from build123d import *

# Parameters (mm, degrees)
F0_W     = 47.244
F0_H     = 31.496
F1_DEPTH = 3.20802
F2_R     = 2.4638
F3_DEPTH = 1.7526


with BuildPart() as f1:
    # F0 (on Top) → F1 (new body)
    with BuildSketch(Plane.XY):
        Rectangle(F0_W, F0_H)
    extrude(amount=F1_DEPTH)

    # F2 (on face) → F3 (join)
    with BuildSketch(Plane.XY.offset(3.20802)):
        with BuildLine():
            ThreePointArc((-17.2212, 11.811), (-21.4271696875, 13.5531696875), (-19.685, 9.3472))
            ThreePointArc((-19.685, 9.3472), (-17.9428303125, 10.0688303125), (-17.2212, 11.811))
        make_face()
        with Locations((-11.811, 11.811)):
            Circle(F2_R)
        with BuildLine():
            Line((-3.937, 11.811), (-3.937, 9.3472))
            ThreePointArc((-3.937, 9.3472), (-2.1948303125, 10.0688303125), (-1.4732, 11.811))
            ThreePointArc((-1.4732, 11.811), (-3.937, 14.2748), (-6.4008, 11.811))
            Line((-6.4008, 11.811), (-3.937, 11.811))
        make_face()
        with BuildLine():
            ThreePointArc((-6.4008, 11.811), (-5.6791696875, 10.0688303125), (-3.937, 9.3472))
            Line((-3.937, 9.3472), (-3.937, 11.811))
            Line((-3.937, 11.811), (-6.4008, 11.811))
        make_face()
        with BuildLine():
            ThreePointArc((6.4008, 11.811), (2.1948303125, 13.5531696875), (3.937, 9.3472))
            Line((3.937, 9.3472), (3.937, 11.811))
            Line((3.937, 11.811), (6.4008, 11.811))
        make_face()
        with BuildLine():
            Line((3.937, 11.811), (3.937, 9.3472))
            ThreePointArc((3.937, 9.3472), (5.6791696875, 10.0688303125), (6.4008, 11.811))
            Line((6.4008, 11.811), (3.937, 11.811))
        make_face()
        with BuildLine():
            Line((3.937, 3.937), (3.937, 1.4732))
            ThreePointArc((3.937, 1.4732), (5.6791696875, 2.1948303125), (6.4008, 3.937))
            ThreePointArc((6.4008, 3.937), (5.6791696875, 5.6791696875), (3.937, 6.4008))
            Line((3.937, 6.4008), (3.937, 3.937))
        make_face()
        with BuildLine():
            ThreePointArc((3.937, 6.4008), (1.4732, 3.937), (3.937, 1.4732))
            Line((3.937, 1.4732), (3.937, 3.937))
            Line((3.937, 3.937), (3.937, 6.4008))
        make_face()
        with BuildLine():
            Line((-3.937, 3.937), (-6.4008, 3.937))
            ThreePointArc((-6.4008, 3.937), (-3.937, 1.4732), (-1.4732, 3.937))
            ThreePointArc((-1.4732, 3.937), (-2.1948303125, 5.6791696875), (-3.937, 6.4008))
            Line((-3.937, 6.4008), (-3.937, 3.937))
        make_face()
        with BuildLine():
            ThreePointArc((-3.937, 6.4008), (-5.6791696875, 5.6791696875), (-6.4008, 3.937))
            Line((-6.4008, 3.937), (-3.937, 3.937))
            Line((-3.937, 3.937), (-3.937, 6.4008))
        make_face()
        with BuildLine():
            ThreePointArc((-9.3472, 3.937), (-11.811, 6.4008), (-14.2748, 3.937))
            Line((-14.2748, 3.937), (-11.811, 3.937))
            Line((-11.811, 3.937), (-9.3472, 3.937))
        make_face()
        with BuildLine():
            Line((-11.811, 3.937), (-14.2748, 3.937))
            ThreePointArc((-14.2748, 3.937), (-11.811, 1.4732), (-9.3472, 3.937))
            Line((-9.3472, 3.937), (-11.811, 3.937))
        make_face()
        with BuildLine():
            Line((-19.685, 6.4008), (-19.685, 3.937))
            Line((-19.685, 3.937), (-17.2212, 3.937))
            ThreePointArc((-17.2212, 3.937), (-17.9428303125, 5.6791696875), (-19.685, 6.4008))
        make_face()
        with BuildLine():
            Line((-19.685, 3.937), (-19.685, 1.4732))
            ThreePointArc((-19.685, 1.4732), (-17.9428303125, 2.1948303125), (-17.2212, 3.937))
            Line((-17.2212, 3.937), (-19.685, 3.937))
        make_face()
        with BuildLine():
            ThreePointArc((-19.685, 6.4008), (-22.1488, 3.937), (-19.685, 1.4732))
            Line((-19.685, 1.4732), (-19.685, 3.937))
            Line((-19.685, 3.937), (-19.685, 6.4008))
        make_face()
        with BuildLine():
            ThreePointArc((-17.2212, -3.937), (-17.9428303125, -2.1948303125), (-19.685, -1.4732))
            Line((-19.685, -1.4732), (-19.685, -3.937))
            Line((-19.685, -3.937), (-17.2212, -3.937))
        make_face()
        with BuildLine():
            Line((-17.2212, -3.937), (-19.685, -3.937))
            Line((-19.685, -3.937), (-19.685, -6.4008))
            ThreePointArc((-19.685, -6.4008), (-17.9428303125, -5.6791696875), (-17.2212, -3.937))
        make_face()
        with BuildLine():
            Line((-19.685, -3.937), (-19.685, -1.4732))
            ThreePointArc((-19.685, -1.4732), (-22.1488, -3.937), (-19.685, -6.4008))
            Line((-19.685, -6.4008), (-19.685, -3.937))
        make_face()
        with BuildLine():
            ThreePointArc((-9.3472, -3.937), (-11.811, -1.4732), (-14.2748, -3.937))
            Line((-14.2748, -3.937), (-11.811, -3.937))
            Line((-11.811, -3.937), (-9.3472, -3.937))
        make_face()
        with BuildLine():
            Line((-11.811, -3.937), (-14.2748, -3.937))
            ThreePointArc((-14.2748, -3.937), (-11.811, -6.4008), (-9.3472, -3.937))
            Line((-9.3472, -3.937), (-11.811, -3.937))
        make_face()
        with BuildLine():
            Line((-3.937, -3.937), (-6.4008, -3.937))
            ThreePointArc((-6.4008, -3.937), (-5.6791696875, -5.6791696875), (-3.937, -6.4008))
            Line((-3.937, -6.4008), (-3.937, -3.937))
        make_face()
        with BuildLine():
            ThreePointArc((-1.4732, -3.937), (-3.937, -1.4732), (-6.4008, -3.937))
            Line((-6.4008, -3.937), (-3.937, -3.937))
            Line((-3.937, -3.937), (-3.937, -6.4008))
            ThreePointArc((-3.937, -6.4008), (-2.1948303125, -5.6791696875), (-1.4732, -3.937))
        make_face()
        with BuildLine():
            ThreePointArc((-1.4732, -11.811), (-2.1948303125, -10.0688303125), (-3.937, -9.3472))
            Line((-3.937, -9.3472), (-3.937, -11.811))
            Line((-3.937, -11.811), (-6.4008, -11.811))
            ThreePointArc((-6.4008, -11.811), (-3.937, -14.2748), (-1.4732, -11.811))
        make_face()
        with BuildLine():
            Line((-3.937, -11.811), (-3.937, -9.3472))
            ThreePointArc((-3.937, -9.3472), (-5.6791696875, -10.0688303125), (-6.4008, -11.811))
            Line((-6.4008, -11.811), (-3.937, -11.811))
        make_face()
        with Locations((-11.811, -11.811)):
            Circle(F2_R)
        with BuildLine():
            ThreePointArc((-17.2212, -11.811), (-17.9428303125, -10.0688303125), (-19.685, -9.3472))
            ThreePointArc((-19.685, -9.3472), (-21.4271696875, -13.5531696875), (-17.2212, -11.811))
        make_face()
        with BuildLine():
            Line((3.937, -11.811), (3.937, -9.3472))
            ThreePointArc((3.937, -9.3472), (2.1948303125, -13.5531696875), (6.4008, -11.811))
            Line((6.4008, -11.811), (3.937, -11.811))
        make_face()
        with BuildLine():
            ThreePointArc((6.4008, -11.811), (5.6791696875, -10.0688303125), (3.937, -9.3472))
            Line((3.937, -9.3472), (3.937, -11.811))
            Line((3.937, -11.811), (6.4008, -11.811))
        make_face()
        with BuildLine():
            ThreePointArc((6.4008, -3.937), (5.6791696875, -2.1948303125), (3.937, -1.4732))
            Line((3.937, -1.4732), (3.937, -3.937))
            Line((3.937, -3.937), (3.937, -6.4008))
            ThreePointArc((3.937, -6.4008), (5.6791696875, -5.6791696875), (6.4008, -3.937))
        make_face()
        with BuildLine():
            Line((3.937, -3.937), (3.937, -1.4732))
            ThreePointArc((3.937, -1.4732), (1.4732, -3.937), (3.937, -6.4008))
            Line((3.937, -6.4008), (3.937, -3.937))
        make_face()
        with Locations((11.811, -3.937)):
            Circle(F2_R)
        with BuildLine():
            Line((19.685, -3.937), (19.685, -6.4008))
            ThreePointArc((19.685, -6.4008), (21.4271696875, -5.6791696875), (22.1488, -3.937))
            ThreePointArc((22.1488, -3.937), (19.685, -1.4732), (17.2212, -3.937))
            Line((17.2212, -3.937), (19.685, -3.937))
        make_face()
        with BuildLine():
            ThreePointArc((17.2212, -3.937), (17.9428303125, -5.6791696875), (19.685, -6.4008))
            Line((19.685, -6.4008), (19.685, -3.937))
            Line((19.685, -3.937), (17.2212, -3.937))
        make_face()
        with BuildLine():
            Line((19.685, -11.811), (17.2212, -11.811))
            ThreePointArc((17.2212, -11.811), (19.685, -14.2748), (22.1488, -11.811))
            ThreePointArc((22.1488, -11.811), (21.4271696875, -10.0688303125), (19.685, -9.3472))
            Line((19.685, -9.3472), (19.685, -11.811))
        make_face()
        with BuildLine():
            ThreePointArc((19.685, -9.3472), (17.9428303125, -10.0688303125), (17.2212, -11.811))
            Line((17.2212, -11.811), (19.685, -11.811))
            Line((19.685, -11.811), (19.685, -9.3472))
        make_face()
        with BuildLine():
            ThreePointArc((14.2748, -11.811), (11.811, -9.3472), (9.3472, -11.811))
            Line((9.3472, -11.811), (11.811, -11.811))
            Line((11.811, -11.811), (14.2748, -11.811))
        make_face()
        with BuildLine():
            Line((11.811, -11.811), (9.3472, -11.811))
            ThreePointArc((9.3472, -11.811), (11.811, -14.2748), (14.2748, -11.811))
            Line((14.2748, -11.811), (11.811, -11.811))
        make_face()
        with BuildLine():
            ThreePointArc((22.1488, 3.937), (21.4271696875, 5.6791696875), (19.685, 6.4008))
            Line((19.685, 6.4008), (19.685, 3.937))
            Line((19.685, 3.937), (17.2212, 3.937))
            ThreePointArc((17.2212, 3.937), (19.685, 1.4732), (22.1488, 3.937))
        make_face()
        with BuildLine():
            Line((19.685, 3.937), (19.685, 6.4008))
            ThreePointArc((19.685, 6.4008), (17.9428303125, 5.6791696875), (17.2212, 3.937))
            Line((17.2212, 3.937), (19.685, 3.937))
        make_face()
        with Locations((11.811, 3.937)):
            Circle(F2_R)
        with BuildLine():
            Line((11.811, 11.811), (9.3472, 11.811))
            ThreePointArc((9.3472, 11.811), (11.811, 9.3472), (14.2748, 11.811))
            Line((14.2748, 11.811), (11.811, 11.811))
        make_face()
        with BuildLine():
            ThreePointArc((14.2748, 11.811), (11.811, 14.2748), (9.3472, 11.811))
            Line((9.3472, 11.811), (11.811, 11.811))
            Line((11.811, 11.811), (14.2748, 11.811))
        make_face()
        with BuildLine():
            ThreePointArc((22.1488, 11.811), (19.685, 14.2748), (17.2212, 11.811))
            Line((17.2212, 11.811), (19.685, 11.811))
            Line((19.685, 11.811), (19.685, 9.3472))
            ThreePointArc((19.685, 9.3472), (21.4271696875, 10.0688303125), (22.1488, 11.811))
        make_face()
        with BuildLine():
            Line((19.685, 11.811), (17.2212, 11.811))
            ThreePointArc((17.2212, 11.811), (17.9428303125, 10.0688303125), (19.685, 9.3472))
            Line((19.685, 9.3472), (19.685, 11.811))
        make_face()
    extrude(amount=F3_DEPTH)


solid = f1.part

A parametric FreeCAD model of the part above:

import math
import FreeCAD as App
import Part
import Sketcher
from FreeCAD import Vector
Q = App.Units.Quantity

doc = App.newDocument("Part")
body = doc.addObject("PartDesign::Body", "Body")

sketch1 = body.newObject("Sketcher::SketchObject", "Sketch")
sketch1.AttachmentSupport = (doc.getObject("XY_Plane"), [""])
sketch1.MapMode = "FlatFace"
sketch1.addGeometry(Part.LineSegment(Vector(-24, 16, 0), Vector(-24, -16, 0)), False)
sketch1.addGeometry(Part.LineSegment(Vector(-24, -16, 0), Vector(24, -16, 0)), False)
sketch1.addGeometry(Part.LineSegment(Vector(24, -16, 0), Vector(24, 16, 0)), False)
sketch1.addGeometry(Part.LineSegment(Vector(24, 16, 0), Vector(-24, 16, 0)), False)
sketch1.addConstraint(Sketcher.Constraint("Coincident", 0, 2, 1, 1))
sketch1.addConstraint(Sketcher.Constraint("Coincident", 1, 2, 2, 1))
sketch1.addConstraint(Sketcher.Constraint("Coincident", 2, 2, 3, 1))
sketch1.addConstraint(Sketcher.Constraint("Coincident", 3, 2, 0, 1))
sketch1.addConstraint(Sketcher.Constraint("Vertical", 0))
sketch1.addConstraint(Sketcher.Constraint("Horizontal", 1))
sketch1.addConstraint(Sketcher.Constraint("Vertical", 2))
sketch1.addConstraint(Sketcher.Constraint("Horizontal", 3))
sketch1.addConstraint(Sketcher.Constraint("Symmetric", 0, 2, 2, 2, -1, 1))
sketch1.addConstraint(Sketcher.Constraint("DistanceX", 1, 1, 1, 2, Q("1.86 in")))
sketch1.addConstraint(Sketcher.Constraint("DistanceY", 0, 2, 0, 1, Q("1.24 in")))
pad1 = body.newObject("PartDesign::Pad", "Pad")
pad1.Profile = sketch1
pad1.Length = Q("0.1263 in")

sketch2 = body.newObject("Sketcher::SketchObject", "Sketch001")
sketch2.AttachmentSupport = (doc.getObject("XY_Plane"), [""])
sketch2.MapMode = "FlatFace"
sketch2.AttachmentOffset = App.Placement(Vector(0, 0, 0.1263 * 25.4), App.Rotation())
sketch2.addGeometry(Part.ArcOfCircle(Part.Circle(Vector(-19.7, 11.8, 0), Vector(0, 0, 1), 2.5), math.radians(0), math.radians(270)), False)
sketch2.addGeometry(Part.ArcOfCircle(Part.Circle(Vector(-19.7, 11.8, 0), Vector(0, 0, 1), 2.5), math.radians(-90), math.radians(0)), False)
sketch2.addGeometry(Part.Circle(Vector(-11.8, 11.8, 0), Vector(0, 0, 1), 2.5), False)
sketch2.addGeometry(Part.ArcOfCircle(Part.Circle(Vector(-3.9, 11.8, 0), Vector(0, 0, 1), 2.5), math.radians(-90), math.radians(0)), False)
sketch2.addGeometry(Part.ArcOfCircle(Part.Circle(Vector(-3.9, 11.8, 0), Vector(0, 0, 1), 2.5), math.radians(0), math.radians(180)), False)
sketch2.addGeometry(Part.ArcOfCircle(Part.Circle(Vector(-3.9, 11.8, 0), Vector(0, 0, 1), 2.5), math.radians(180), math.radians(270)), False)
sketch2.addGeometry(Part.ArcOfCircle(Part.Circle(Vector(3.9, 11.8, 0), Vector(0, 0, 1), 2.5), math.radians(0), math.radians(270)), False)
sketch2.addGeometry(Part.ArcOfCircle(Part.Circle(Vector(3.9, 11.8, 0), Vector(0, 0, 1), 2.5), math.radians(-90), math.radians(0)), False)
sketch2.addGeometry(Part.ArcOfCircle(Part.Circle(Vector(3.9, 3.9, 0), Vector(0, 0, 1), 2.5), math.radians(-90), math.radians(0)), False)
sketch2.addGeometry(Part.ArcOfCircle(Part.Circle(Vector(3.9, 3.9, 0), Vector(0, 0, 1), 2.5), math.radians(0), math.radians(90)), False)
sketch2.addGeometry(Part.ArcOfCircle(Part.Circle(Vector(3.9, 3.9, 0), Vector(0, 0, 1), 2.5), math.radians(90), math.radians(270)), False)
sketch2.addGeometry(Part.ArcOfCircle(Part.Circle(Vector(-3.9, 3.9, 0), Vector(0, 0, 1), 2.5), math.radians(180), math.radians(360)), False)
sketch2.addGeometry(Part.ArcOfCircle(Part.Circle(Vector(-3.9, 3.9, 0), Vector(0, 0, 1), 2.5), math.radians(0), math.radians(90)), False)
sketch2.addGeometry(Part.ArcOfCircle(Part.Circle(Vector(-3.9, 3.9, 0), Vector(0, 0, 1), 2.5), math.radians(90), math.radians(180)), False)
sketch2.addGeometry(Part.Circle(Vector(-11.8, 3.9, 0), Vector(0, 0, 1), 2.5), False)
sketch2.addGeometry(Part.ArcOfCircle(Part.Circle(Vector(-19.7, 3.9, 0), Vector(0, 0, 1), 2.5), math.radians(-90), math.radians(0)), False)
sketch2.addGeometry(Part.ArcOfCircle(Part.Circle(Vector(-19.7, 3.9, 0), Vector(0, 0, 1), 2.5), math.radians(0), math.radians(90)), False)
sketch2.addGeometry(Part.ArcOfCircle(Part.Circle(Vector(-19.7, 3.9, 0), Vector(0, 0, 1), 2.5), math.radians(90), math.radians(270)), False)
sketch2.addGeometry(Part.ArcOfCircle(Part.Circle(Vector(-19.7, -3.9, 0), Vector(0, 0, 1), 2.5), math.radians(0), math.radians(90)), False)
sketch2.addGeometry(Part.ArcOfCircle(Part.Circle(Vector(-19.7, -3.9, 0), Vector(0, 0, 1), 2.5), math.radians(90), math.radians(270)), False)
sketch2.addGeometry(Part.ArcOfCircle(Part.Circle(Vector(-19.7, -3.9, 0), Vector(0, 0, 1), 2.5), math.radians(-90), math.radians(0)), False)
sketch2.addGeometry(Part.Circle(Vector(-11.8, -3.9, 0), Vector(0, 0, 1), 2.5), False)
sketch2.addGeometry(Part.ArcOfCircle(Part.Circle(Vector(-3.9, -3.9, 0), Vector(0, 0, 1), 2.5), math.radians(180), math.radians(270)), False)
sketch2.addGeometry(Part.ArcOfCircle(Part.Circle(Vector(-3.9, -3.9, 0), Vector(0, 0, 1), 2.5), math.radians(-90), math.radians(0)), False)
sketch2.addGeometry(Part.ArcOfCircle(Part.Circle(Vector(-3.9, -3.9, 0), Vector(0, 0, 1), 2.5), math.radians(0), math.radians(180)), False)
sketch2.addGeometry(Part.ArcOfCircle(Part.Circle(Vector(-3.9, -11.8, 0), Vector(0, 0, 1), 2.5), math.radians(0), math.radians(90)), False)
sketch2.addGeometry(Part.ArcOfCircle(Part.Circle(Vector(-3.9, -11.8, 0), Vector(0, 0, 1), 2.5), math.radians(90), math.radians(180)), False)
sketch2.addGeometry(Part.ArcOfCircle(Part.Circle(Vector(-3.9, -11.8, 0), Vector(0, 0, 1), 2.5), math.radians(180), math.radians(360)), False)
sketch2.addGeometry(Part.Circle(Vector(-11.8, -11.8, 0), Vector(0, 0, 1), 2.5), False)
sketch2.addGeometry(Part.ArcOfCircle(Part.Circle(Vector(-19.7, -11.8, 0), Vector(0, 0, 1), 2.5), math.radians(0), math.radians(90)), False)
sketch2.addGeometry(Part.ArcOfCircle(Part.Circle(Vector(-19.7, -11.8, 0), Vector(0, 0, 1), 2.5), math.radians(90), math.radians(360)), False)
sketch2.addGeometry(Part.ArcOfCircle(Part.Circle(Vector(3.9, -11.8, 0), Vector(0, 0, 1), 2.5), math.radians(90), math.radians(360)), False)
sketch2.addGeometry(Part.ArcOfCircle(Part.Circle(Vector(3.9, -11.8, 0), Vector(0, 0, 1), 2.5), math.radians(0), math.radians(90)), False)
sketch2.addGeometry(Part.ArcOfCircle(Part.Circle(Vector(3.9, -3.9, 0), Vector(0, 0, 1), 2.5), math.radians(0), math.radians(90)), False)
sketch2.addGeometry(Part.ArcOfCircle(Part.Circle(Vector(3.9, -3.9, 0), Vector(0, 0, 1), 2.5), math.radians(90), math.radians(270)), False)
sketch2.addGeometry(Part.ArcOfCircle(Part.Circle(Vector(3.9, -3.9, 0), Vector(0, 0, 1), 2.5), math.radians(-90), math.radians(0)), False)
sketch2.addGeometry(Part.Circle(Vector(11.8, -3.9, 0), Vector(0, 0, 1), 2.5), False)
sketch2.addGeometry(Part.ArcOfCircle(Part.Circle(Vector(19.7, -3.9, 0), Vector(0, 0, 1), 2.5), math.radians(-90), math.radians(0)), False)
sketch2.addGeometry(Part.ArcOfCircle(Part.Circle(Vector(19.7, -3.9, 0), Vector(0, 0, 1), 2.5), math.radians(0), math.radians(180)), False)
sketch2.addGeometry(Part.ArcOfCircle(Part.Circle(Vector(19.7, -3.9, 0), Vector(0, 0, 1), 2.5), math.radians(180), math.radians(270)), False)
sketch2.addGeometry(Part.ArcOfCircle(Part.Circle(Vector(19.7, -11.8, 0), Vector(0, 0, 1), 2.5), math.radians(180), math.radians(360)), False)
sketch2.addGeometry(Part.ArcOfCircle(Part.Circle(Vector(19.7, -11.8, 0), Vector(0, 0, 1), 2.5), math.radians(0), math.radians(90)), False)
sketch2.addGeometry(Part.ArcOfCircle(Part.Circle(Vector(19.7, -11.8, 0), Vector(0, 0, 1), 2.5), math.radians(90), math.radians(180)), False)
sketch2.addGeometry(Part.Circle(Vector(11.8, -11.8, 0), Vector(0, 0, 1), 2.5), False)
sketch2.addGeometry(Part.ArcOfCircle(Part.Circle(Vector(19.7, 3.9, 0), Vector(0, 0, 1), 2.5), math.radians(0), math.radians(90)), False)
sketch2.addGeometry(Part.ArcOfCircle(Part.Circle(Vector(19.7, 3.9, 0), Vector(0, 0, 1), 2.5), math.radians(90), math.radians(180)), False)
sketch2.addGeometry(Part.ArcOfCircle(Part.Circle(Vector(19.7, 3.9, 0), Vector(0, 0, 1), 2.5), math.radians(180), math.radians(360)), False)
sketch2.addGeometry(Part.Circle(Vector(11.8, 3.9, 0), Vector(0, 0, 1), 2.5), False)
sketch2.addGeometry(Part.Circle(Vector(11.8, 11.8, 0), Vector(0, 0, 1), 2.5), False)
sketch2.addGeometry(Part.ArcOfCircle(Part.Circle(Vector(19.7, 11.8, 0), Vector(0, 0, 1), 2.5), math.radians(0), math.radians(180)), False)
sketch2.addGeometry(Part.ArcOfCircle(Part.Circle(Vector(19.7, 11.8, 0), Vector(0, 0, 1), 2.5), math.radians(180), math.radians(270)), False)
sketch2.addGeometry(Part.ArcOfCircle(Part.Circle(Vector(19.7, 11.8, 0), Vector(0, 0, 1), 2.5), math.radians(-90), math.radians(0)), False)
sketch2.addConstraint(Sketcher.Constraint("Tangent", 0, 1, 1, 2))
sketch2.addConstraint(Sketcher.Constraint("Coincident", 1, 1, 0, 2))
sketch2.addConstraint(Sketcher.Constraint("Tangent", 3, 2, 4, 1))
sketch2.addConstraint(Sketcher.Constraint("Tangent", 4, 2, 5, 1))
sketch2.addConstraint(Sketcher.Constraint("Tangent", 5, 2, 3, 1))
sketch2.addConstraint(Sketcher.Constraint("Tangent", 6, 1, 7, 2))
sketch2.addConstraint(Sketcher.Constraint("Coincident", 7, 1, 6, 2))
sketch2.addConstraint(Sketcher.Constraint("Tangent", 8, 2, 9, 1))
sketch2.addConstraint(Sketcher.Constraint("Tangent", 9, 2, 10, 1))
sketch2.addConstraint(Sketcher.Constraint("Tangent", 10, 2, 8, 1))
sketch2.addConstraint(Sketcher.Constraint("Tangent", 11, 2, 12, 1))
sketch2.addConstraint(Sketcher.Constraint("Tangent", 12, 2, 13, 1))
sketch2.addConstraint(Sketcher.Constraint("Tangent", 13, 2, 11, 1))
sketch2.addConstraint(Sketcher.Constraint("Tangent", 15, 2, 16, 1))
sketch2.addConstraint(Sketcher.Constraint("Tangent", 16, 2, 17, 1))
sketch2.addConstraint(Sketcher.Constraint("Tangent", 17, 2, 15, 1))
sketch2.addConstraint(Sketcher.Constraint("Tangent", 18, 2, 19, 1))
sketch2.addConstraint(Sketcher.Constraint("Tangent", 19, 2, 20, 1))
sketch2.addConstraint(Sketcher.Constraint("Tangent", 20, 2, 18, 1))
sketch2.addConstraint(Sketcher.Constraint("Tangent", 22, 2, 23, 1))
sketch2.addConstraint(Sketcher.Constraint("Tangent", 23, 2, 24, 1))
sketch2.addConstraint(Sketcher.Constraint("Tangent", 24, 2, 22, 1))
sketch2.addConstraint(Sketcher.Constraint("Tangent", 25, 2, 26, 1))
sketch2.addConstraint(Sketcher.Constraint("Tangent", 26, 2, 27, 1))
sketch2.addConstraint(Sketcher.Constraint("Tangent", 27, 2, 25, 1))
sketch2.addConstraint(Sketcher.Constraint("Tangent", 29, 1, 30, 2))
sketch2.addConstraint(Sketcher.Constraint("Coincident", 30, 1, 29, 2))
sketch2.addConstraint(Sketcher.Constraint("Tangent", 31, 1, 32, 2))
sketch2.addConstraint(Sketcher.Constraint("Coincident", 32, 1, 31, 2))
sketch2.addConstraint(Sketcher.Constraint("Tangent", 33, 2, 34, 1))
sketch2.addConstraint(Sketcher.Constraint("Tangent", 34, 2, 35, 1))
sketch2.addConstraint(Sketcher.Constraint("Tangent", 35, 2, 33, 1))
sketch2.addConstraint(Sketcher.Constraint("Tangent", 37, 2, 38, 1))
sketch2.addConstraint(Sketcher.Constraint("Tangent", 38, 2, 39, 1))
sketch2.addConstraint(Sketcher.Constraint("Tangent", 39, 2, 37, 1))
sketch2.addConstraint(Sketcher.Constraint("Tangent", 40, 2, 41, 1))
sketch2.addConstraint(Sketcher.Constraint("Tangent", 41, 2, 42, 1))
sketch2.addConstraint(Sketcher.Constraint("Tangent", 42, 2, 40, 1))
sketch2.addConstraint(Sketcher.Constraint("Tangent", 44, 2, 45, 1))
sketch2.addConstraint(Sketcher.Constraint("Tangent", 45, 2, 46, 1))
sketch2.addConstraint(Sketcher.Constraint("Tangent", 46, 2, 44, 1))
sketch2.addConstraint(Sketcher.Constraint("Tangent", 49, 2, 50, 1))
sketch2.addConstraint(Sketcher.Constraint("Tangent", 50, 2, 51, 1))
sketch2.addConstraint(Sketcher.Constraint("Tangent", 51, 2, 49, 1))
sketch2.addConstraint(Sketcher.Constraint("Equal", 1, 2))
sketch2.addConstraint(Sketcher.Constraint("Equal", 2, 3))
sketch2.addConstraint(Sketcher.Constraint("Equal", 5, 6))
sketch2.addConstraint(Sketcher.Constraint("Equal", 7, 8))
sketch2.addConstraint(Sketcher.Constraint("Equal", 10, 11))
sketch2.addConstraint(Sketcher.Constraint("Equal", 13, 14))
sketch2.addConstraint(Sketcher.Constraint("Equal", 14, 15))
sketch2.addConstraint(Sketcher.Constraint("Equal", 17, 18))
sketch2.addConstraint(Sketcher.Constraint("Equal", 20, 21))
sketch2.addConstraint(Sketcher.Constraint("Equal", 21, 22))
sketch2.addConstraint(Sketcher.Constraint("Equal", 24, 25))
sketch2.addConstraint(Sketcher.Constraint("Equal", 27, 28))
sketch2.addConstraint(Sketcher.Constraint("Equal", 28, 29))
sketch2.addConstraint(Sketcher.Constraint("Equal", 30, 31))
sketch2.addConstraint(Sketcher.Constraint("Equal", 32, 33))
sketch2.addConstraint(Sketcher.Constraint("Equal", 35, 36))
sketch2.addConstraint(Sketcher.Constraint("Equal", 36, 37))
sketch2.addConstraint(Sketcher.Constraint("Equal", 39, 40))
sketch2.addConstraint(Sketcher.Constraint("Equal", 42, 43))
sketch2.addConstraint(Sketcher.Constraint("Equal", 43, 44))
sketch2.addConstraint(Sketcher.Constraint("Equal", 46, 47))
sketch2.addConstraint(Sketcher.Constraint("Equal", 47, 48))
sketch2.addConstraint(Sketcher.Constraint("Equal", 48, 49))
sketch2.addConstraint(Sketcher.Constraint("Symmetric", 8, 3, 22, 3, -1, 1))
sketch2.addConstraint(Sketcher.Constraint("Symmetric", 6, 3, 25, 3, -1, 1))
sketch2.addConstraint(Sketcher.Constraint("Symmetric", 3, 3, 31, 3, -1, 1))
sketch2.addConstraint(Sketcher.Constraint("Symmetric", 11, 3, 33, 3, -1, 1))
sketch2.addConstraint(Sketcher.Constraint("Symmetric", 14, 3, 36, 3, -1, 1))
sketch2.addConstraint(Sketcher.Constraint("Symmetric", 15, 3, 37, 3, -1, 1))
sketch2.addConstraint(Sketcher.Constraint("Symmetric", 0, 3, 40, 3, -1, 1))
sketch2.addConstraint(Sketcher.Constraint("Symmetric", 2, 3, 43, 3, -1, 1))
sketch2.addConstraint(Sketcher.Constraint("Symmetric", 18, 3, 44, 3, -1, 1))
sketch2.addConstraint(Sketcher.Constraint("Symmetric", 21, 3, 47, 3, -1, 1))
sketch2.addConstraint(Sketcher.Constraint("Symmetric", 28, 3, 48, 3, -1, 1))
sketch2.addConstraint(Sketcher.Constraint("Symmetric", 29, 3, 49, 3, -1, 1))
sketch2.addConstraint(Sketcher.Constraint("Symmetric", 3, 3, 6, 3, -2))
sketch2.addConstraint(Sketcher.Constraint("Symmetric", 8, 3, 11, 3, -2))
sketch2.addConstraint(Sketcher.Constraint("Symmetric", 21, 3, 36, 3, -2))
sketch2.addConstraint(Sketcher.Constraint("Symmetric", 18, 3, 37, 3, -2))
sketch2.addConstraint(Sketcher.Constraint("Symmetric", 29, 3, 40, 3, -2))
sketch2.addConstraint(Sketcher.Constraint("Symmetric", 28, 3, 43, 3, -2))
sketch2.addConstraint(Sketcher.Constraint("Horizontal", 1, 3, 2, 3))
sketch2.addConstraint(Sketcher.Constraint("Horizontal", 2, 3, 3, 3))
sketch2.addConstraint(Sketcher.Constraint("Horizontal", 13, 3, 14, 3))
sketch2.addConstraint(Sketcher.Constraint("Horizontal", 14, 3, 15, 3))
sketch2.addConstraint(Sketcher.Constraint("Horizontal", 51, 3, 0, 1))
sketch2.addConstraint(Sketcher.Constraint("Horizontal", 0, 1, 3, 2))
sketch2.addConstraint(Sketcher.Constraint("Horizontal", 3, 2, 4, 2))
sketch2.addConstraint(Sketcher.Constraint("Horizontal", 4, 2, 6, 1))
sketch2.addConstraint(Sketcher.Constraint("Horizontal", 47, 3, 8, 2))
sketch2.addConstraint(Sketcher.Constraint("Horizontal", 8, 2, 11, 2))
sketch2.addConstraint(Sketcher.Constraint("Horizontal", 11, 2, 13, 2))
sketch2.addConstraint(Sketcher.Constraint("Horizontal", 13, 2, 15, 2))
sketch2.addConstraint(Sketcher.Constraint("Horizontal", 39, 3, 20, 2))
sketch2.addConstraint(Sketcher.Constraint("Horizontal", 20, 2, 23, 2))
sketch2.addConstraint(Sketcher.Constraint("Horizontal", 23, 2, 24, 2))
sketch2.addConstraint(Sketcher.Constraint("Horizontal", 43, 3, 26, 2))
sketch2.addConstraint(Sketcher.Constraint("Horizontal", 26, 2, 27, 2))
sketch2.addConstraint(Sketcher.Constraint("Horizontal", 27, 2, 29, 1))
sketch2.addConstraint(Sketcher.Constraint("Horizontal", 29, 1, 32, 1))
sketch2.addConstraint(Sketcher.Constraint("Horizontal", 24, 2, 35, 2))
sketch2.addConstraint(Sketcher.Constraint("Horizontal", 35, 2, 37, 2))
sketch2.addConstraint(Sketcher.Constraint("Horizontal", 37, 2, 38, 2))
sketch2.addConstraint(Sketcher.Constraint("Horizontal", 32, 1, 40, 2))
sketch2.addConstraint(Sketcher.Constraint("Horizontal", 40, 2, 42, 2))
sketch2.addConstraint(Sketcher.Constraint("Horizontal", 15, 2, 45, 2))
sketch2.addConstraint(Sketcher.Constraint("Horizontal", 45, 2, 46, 2))
sketch2.addConstraint(Sketcher.Constraint("Horizontal", 6, 1, 49, 2))
sketch2.addConstraint(Sketcher.Constraint("Horizontal", 49, 2, 51, 2))
sketch2.addConstraint(Sketcher.Constraint("Vertical", 7, 3, 8, 3))
sketch2.addConstraint(Sketcher.Constraint("Vertical", 2, 3, 14, 3))
sketch2.addConstraint(Sketcher.Constraint("Vertical", 1, 3, 15, 3))
sketch2.addConstraint(Sketcher.Constraint("Vertical", 30, 3, 1, 1))
sketch2.addConstraint(Sketcher.Constraint("Vertical", 27, 3, 5, 2))
sketch2.addConstraint(Sketcher.Constraint("Vertical", 35, 3, 7, 1))
sketch2.addConstraint(Sketcher.Constraint("Vertical", 7, 1, 9, 2))
sketch2.addConstraint(Sketcher.Constraint("Vertical", 9, 2, 10, 2))
sketch2.addConstraint(Sketcher.Constraint("Vertical", 5, 2, 12, 2))
sketch2.addConstraint(Sketcher.Constraint("Vertical", 1, 1, 16, 2))
sketch2.addConstraint(Sketcher.Constraint("Vertical", 16, 2, 17, 2))
sketch2.addConstraint(Sketcher.Constraint("Vertical", 17, 2, 18, 2))
sketch2.addConstraint(Sketcher.Constraint("Vertical", 18, 2, 19, 2))
sketch2.addConstraint(Sketcher.Constraint("Vertical", 12, 2, 22, 2))
sketch2.addConstraint(Sketcher.Constraint("Vertical", 22, 2, 25, 2))
sketch2.addConstraint(Sketcher.Constraint("Vertical", 19, 2, 30, 1))
sketch2.addConstraint(Sketcher.Constraint("Vertical", 10, 2, 31, 1))
sketch2.addConstraint(Sketcher.Constraint("Vertical", 31, 1, 33, 2))
sketch2.addConstraint(Sketcher.Constraint("Vertical", 33, 2, 34, 2))
sketch2.addConstraint(Sketcher.Constraint("Vertical", 51, 3, 39, 2))
sketch2.addConstraint(Sketcher.Constraint("Vertical", 39, 2, 41, 2))
sketch2.addConstraint(Sketcher.Constraint("Vertical", 41, 2, 44, 2))
sketch2.addConstraint(Sketcher.Constraint("Vertical", 44, 2, 50, 2))
sketch2.addConstraint(Sketcher.Constraint("Diameter", 2, Q("0.194 in")))
sketch2.addConstraint(Sketcher.Constraint("DistanceX", 0, 3, -1, 1, Q("0.775 in")))
sketch2.addConstraint(Sketcher.Constraint("DistanceY", -1, 1, 0, 3, Q("0.465 in")))
sketch2.addConstraint(Sketcher.Constraint("DistanceX", 2, 3, -1, 1, Q("0.465 in")))
sketch2.addConstraint(Sketcher.Constraint("DistanceX", 3, 3, -1, 1, Q("0.155 in")))
sketch2.addConstraint(Sketcher.Constraint("DistanceY", -1, 1, 8, 3, Q("0.155 in")))
pad2 = body.newObject("PartDesign::Pad", "Pad001")
pad2.Profile = sketch2
pad2.Length = Q("0.069 in")

doc.recompute()
